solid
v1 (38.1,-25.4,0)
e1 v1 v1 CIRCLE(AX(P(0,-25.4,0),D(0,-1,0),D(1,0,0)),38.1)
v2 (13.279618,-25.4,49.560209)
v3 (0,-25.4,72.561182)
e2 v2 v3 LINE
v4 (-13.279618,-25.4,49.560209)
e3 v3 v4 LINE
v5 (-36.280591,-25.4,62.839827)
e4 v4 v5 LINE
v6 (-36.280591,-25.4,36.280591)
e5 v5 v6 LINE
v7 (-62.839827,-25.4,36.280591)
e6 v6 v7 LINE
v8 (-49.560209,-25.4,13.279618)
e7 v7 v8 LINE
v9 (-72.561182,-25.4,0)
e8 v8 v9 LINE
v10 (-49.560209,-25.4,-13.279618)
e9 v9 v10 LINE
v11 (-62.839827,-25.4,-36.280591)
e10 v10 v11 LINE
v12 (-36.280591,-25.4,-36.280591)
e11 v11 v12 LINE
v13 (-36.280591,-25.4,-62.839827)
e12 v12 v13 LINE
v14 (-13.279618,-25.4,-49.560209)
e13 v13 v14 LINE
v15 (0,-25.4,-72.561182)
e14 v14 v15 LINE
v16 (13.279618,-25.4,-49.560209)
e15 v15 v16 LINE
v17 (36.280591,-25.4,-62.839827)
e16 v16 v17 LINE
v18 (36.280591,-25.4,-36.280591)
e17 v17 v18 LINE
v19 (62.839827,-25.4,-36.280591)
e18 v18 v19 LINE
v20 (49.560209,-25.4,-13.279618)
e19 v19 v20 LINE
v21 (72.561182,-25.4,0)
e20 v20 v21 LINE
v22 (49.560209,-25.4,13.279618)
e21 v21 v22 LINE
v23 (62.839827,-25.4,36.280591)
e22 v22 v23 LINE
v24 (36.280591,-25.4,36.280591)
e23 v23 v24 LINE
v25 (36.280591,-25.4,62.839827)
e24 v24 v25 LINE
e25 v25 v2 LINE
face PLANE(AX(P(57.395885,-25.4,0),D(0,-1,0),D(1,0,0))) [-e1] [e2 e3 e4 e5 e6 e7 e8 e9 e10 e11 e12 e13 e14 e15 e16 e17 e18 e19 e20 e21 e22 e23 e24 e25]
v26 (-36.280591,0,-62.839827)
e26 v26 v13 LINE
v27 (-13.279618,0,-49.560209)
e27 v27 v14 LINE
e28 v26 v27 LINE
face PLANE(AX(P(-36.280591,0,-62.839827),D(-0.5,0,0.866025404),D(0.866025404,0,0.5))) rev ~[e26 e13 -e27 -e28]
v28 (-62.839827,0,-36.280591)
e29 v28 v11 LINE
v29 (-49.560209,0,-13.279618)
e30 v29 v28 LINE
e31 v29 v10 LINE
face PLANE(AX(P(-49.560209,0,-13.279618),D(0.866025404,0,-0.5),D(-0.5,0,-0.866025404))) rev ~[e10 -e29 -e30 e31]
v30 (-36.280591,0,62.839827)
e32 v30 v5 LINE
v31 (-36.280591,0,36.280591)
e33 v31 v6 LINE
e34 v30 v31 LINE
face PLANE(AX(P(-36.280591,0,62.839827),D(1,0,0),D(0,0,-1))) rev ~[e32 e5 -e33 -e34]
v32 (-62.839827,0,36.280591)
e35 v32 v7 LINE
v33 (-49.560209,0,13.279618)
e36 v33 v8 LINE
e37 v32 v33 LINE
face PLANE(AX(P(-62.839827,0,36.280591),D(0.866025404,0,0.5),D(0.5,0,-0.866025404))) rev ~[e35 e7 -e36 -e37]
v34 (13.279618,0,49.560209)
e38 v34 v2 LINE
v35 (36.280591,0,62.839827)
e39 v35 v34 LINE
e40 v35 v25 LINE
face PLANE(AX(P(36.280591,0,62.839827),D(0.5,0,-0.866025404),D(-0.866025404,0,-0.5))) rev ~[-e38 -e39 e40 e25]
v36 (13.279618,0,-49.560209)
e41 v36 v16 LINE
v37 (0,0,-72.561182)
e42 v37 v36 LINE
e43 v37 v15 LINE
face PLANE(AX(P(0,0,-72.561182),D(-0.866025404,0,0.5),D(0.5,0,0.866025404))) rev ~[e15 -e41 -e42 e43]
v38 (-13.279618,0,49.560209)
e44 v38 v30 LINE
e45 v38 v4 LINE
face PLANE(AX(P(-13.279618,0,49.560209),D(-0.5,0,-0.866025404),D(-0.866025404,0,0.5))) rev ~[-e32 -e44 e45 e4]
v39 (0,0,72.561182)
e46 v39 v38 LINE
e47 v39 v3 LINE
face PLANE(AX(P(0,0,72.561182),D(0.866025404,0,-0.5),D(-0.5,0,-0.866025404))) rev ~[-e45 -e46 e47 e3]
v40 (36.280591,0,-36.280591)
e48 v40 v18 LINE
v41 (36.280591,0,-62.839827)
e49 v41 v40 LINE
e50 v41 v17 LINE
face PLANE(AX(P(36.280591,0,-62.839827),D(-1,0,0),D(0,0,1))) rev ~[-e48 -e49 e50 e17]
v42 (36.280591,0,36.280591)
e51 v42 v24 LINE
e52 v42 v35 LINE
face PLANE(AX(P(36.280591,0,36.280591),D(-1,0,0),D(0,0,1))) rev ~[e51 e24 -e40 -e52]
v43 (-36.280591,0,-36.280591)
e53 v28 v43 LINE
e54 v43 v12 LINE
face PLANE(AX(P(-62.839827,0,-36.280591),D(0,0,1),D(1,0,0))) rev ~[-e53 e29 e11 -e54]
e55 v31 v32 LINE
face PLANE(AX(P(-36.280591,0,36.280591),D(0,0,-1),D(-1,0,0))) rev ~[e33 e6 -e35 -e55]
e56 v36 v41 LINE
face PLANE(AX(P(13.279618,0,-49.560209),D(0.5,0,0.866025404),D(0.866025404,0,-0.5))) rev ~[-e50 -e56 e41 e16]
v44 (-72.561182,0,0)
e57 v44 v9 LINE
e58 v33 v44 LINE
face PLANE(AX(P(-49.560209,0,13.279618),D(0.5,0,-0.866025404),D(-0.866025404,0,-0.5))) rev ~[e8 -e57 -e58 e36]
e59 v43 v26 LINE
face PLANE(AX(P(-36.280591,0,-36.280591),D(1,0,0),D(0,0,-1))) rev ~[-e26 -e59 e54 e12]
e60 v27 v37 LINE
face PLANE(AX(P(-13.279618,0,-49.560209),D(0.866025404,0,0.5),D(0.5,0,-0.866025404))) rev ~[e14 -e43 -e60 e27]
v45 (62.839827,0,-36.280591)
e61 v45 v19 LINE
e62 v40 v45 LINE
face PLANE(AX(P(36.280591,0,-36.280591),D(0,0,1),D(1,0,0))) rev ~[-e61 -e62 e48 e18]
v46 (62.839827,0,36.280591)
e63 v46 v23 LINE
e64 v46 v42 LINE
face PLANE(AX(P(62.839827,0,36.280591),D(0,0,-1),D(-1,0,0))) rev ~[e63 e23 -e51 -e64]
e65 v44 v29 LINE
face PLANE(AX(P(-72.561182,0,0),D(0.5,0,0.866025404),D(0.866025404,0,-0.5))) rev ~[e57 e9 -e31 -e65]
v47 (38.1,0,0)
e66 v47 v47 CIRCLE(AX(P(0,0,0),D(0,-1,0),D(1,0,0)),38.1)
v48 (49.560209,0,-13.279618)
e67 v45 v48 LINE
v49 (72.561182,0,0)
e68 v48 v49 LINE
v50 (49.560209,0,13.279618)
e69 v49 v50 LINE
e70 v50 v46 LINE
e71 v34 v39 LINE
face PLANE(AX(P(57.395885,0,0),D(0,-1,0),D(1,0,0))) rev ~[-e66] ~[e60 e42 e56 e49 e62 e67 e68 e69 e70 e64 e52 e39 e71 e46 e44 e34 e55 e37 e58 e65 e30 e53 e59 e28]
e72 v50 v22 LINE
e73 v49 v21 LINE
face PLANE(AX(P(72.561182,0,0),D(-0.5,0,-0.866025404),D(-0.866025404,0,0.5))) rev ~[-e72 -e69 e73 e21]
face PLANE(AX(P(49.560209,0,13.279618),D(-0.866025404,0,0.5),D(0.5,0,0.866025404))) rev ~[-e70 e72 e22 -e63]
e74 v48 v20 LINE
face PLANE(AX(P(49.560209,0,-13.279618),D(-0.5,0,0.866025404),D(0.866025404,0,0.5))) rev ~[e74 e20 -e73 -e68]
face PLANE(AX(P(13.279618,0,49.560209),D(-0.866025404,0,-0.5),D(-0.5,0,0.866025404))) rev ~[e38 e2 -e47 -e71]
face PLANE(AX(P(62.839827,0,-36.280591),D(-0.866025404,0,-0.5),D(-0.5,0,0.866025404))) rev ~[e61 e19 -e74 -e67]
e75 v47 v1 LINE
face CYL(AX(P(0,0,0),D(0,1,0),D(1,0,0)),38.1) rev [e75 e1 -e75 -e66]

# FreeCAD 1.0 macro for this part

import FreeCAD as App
import Part
import Sketcher
Q = App.Units.Quantity

doc = App.newDocument("Part")
body = doc.addObject("PartDesign::Body", "Body")

# Sketch on XZ plane
sketch1 = body.newObject("Sketcher::SketchObject", "Sketch")
sketch1.AttachmentSupport = (doc.getObject("XZ_Plane"), [""])
sketch1.MapMode = "FlatFace"
sketch1.addGeometry([
    Part.LineSegment(App.Vector(-50, -13, 0), App.Vector(-63, -36, 0)),  # 0
    Part.LineSegment(App.Vector(-63, -36, 0), App.Vector(-36, -36, 0)),  # 1
    Part.LineSegment(App.Vector(-36, -36, 0), App.Vector(-36, -63, 0)),  # 2
    Part.LineSegment(App.Vector(-36, -63, 0), App.Vector(-13, -50, 0)),  # 3
    Part.LineSegment(App.Vector(-13, -50, 0), App.Vector(0, -73, 0)),  # 4
    Part.LineSegment(App.Vector(0, -73, 0), App.Vector(13, -50, 0)),  # 5
    Part.LineSegment(App.Vector(13, -50, 0), App.Vector(36, -63, 0)),  # 6
    Part.LineSegment(App.Vector(36, -63, 0), App.Vector(36, -36, 0)),  # 7
    Part.LineSegment(App.Vector(36, -36, 0), App.Vector(63, -36, 0)),  # 8
    Part.LineSegment(App.Vector(63, -36, 0), App.Vector(50, -13, 0)),  # 9
    Part.LineSegment(App.Vector(50, -13, 0), App.Vector(73, 0, 0)),  # 10
    Part.LineSegment(App.Vector(73, 0, 0), App.Vector(50, 13, 0)),  # 11
    Part.LineSegment(App.Vector(50, 13, 0), App.Vector(63, 36, 0)),  # 12
    Part.LineSegment(App.Vector(63, 36, 0), App.Vector(36, 36, 0)),  # 13
    Part.LineSegment(App.Vector(36, 36, 0), App.Vector(36, 63, 0)),  # 14
    Part.LineSegment(App.Vector(36, 63, 0), App.Vector(13, 50, 0)),  # 15
    Part.LineSegment(App.Vector(13, 50, 0), App.Vector(0, 73, 0)),  # 16
    Part.LineSegment(App.Vector(0, 73, 0), App.Vector(-13, 50, 0)),  # 17
    Part.LineSegment(App.Vector(-13, 50, 0), App.Vector(-36, 63, 0)),  # 18
    Part.LineSegment(App.Vector(-36, 63, 0), App.Vector(-36, 36, 0)),  # 19
    Part.LineSegment(App.Vector(-36, 36, 0), App.Vector(-63, 36, 0)),  # 20
    Part.LineSegment(App.Vector(-63, 36, 0), App.Vector(-50, 13, 0)),  # 21
    Part.LineSegment(App.Vector(-50, 13, 0), App.Vector(-73, 0, 0)),  # 22
    Part.LineSegment(App.Vector(-73, 0, 0), App.Vector(-50, -13, 0)),  # 23
    Part.Circle(App.Vector(0, 0, 0), App.Vector(0, 0, 1), 38),  # 24
], False)
sketch1.addConstraint([
    Sketcher.Constraint("Coincident", 0, 2, 1, 1),
    Sketcher.Constraint("Coincident", 1, 2, 2, 1),
    Sketcher.Constraint("Coincident", 2, 2, 3, 1),
    Sketcher.Constraint("Coincident", 3, 2, 4, 1),
    Sketcher.Constraint("Coincident", 4, 2, 5, 1),
    Sketcher.Constraint("Coincident", 5, 2, 6, 1),
    Sketcher.Constraint("Coincident", 6, 2, 7, 1),
    Sketcher.Constraint("Coincident", 7, 2, 8, 1),
    Sketcher.Constraint("Coincident", 8, 2, 9, 1),
    Sketcher.Constraint("Coincident", 9, 2, 10, 1),
    Sketcher.Constraint("Coincident", 10, 2, 11, 1),
    Sketcher.Constraint("Coincident", 11, 2, 12, 1),
    Sketcher.Constraint("Coincident", 12, 2, 13, 1),
    Sketcher.Constraint("Coincident", 13, 2, 14, 1),
    Sketcher.Constraint("Coincident", 14, 2, 15, 1),
    Sketcher.Constraint("Coincident", 15, 2, 16, 1),
    Sketcher.Constraint("Coincident", 16, 2, 17, 1),
    Sketcher.Constraint("Coincident", 17, 2, 18, 1),
    Sketcher.Constraint("Coincident", 18, 2, 19, 1),
    Sketcher.Constraint("Coincident", 19, 2, 20, 1),
    Sketcher.Constraint("Coincident", 20, 2, 21, 1),
    Sketcher.Constraint("Coincident", 21, 2, 22, 1),
    Sketcher.Constraint("Coincident", 22, 2, 23, 1),
    Sketcher.Constraint("Coincident", 23, 2, 0, 1),
    Sketcher.Constraint("Horizontal", 1),
    Sketcher.Constraint("Vertical", 2),
    Sketcher.Constraint("Vertical", 7),
    Sketcher.Constraint("Horizontal", 8),
    Sketcher.Constraint("Horizontal", 13),
    Sketcher.Constraint("Vertical", 14),
    Sketcher.Constraint("Vertical", 19),
    Sketcher.Constraint("Horizontal", 20),
    Sketcher.Constraint("Coincident", 24, 3, -1, 1),
    Sketcher.Constraint("Symmetric", 0, 2, 12, 2, -1, 1),
    Sketcher.Constraint("Symmetric", 2, 2, 14, 2, -1, 1),
    Sketcher.Constraint("Symmetric", 3, 2, 15, 2, -1, 1),
    Sketcher.Constraint("Symmetric", 4, 2, 16, 2, -1, 1),
    Sketcher.Constraint("Symmetric", 5, 2, 17, 2, -1, 1),
    Sketcher.Constraint("Symmetric", 6, 2, 18, 2, -1, 1),
    Sketcher.Constraint("Symmetric", 8, 2, 20, 2, -1, 1),
    Sketcher.Constraint("Symmetric", 9, 2, 21, 2, -1, 1),
    Sketcher.Constraint("Symmetric", 10, 2, 22, 2, -1, 1),
    Sketcher.Constraint("Symmetric", 11, 2, 23, 2, -1, 1),
    Sketcher.Constraint("Symmetric", 3, 2, 5, 2, -2),
    Sketcher.Constraint("Symmetric", 2, 2, 6, 2, -2),
    Sketcher.Constraint("Symmetric", 0, 2, 8, 2, -2),
    Sketcher.Constraint("Symmetric", 11, 2, 21, 2, -2),
    Sketcher.Constraint("PointOnObject", 4, 2, -2),
    Sketcher.Constraint("PointOnObject", 10, 2, -1),
    Sketcher.Constraint("Perpendicular", 3, 4),
    Sketcher.Constraint("Parallel", 0, 5),
    Sketcher.Constraint("Perpendicular", 9, 10),
    Sketcher.Constraint("Equal", 20, 2),
    Sketcher.Constraint("Equal", 0, 3),
    Sketcher.Constraint("Equal", 3, 4),
    Sketcher.Constraint("Equal", 9, 10),
    Sketcher.Constraint("Diameter", 24, Q("3 in")),
    Sketcher.Constraint("Angle", 0, Q("-120 deg")),
    Sketcher.Constraint("DistanceX", 1, 1, 1, 2, 26.559236),
    Sketcher.Constraint("DistanceY", 0, 2, -1, 1, 36.280591),
])
pad1 = body.newObject("PartDesign::Pad", "Pad")
pad1.Profile = sketch1
pad1.Length = Q("1 in")

doc.recompute()
